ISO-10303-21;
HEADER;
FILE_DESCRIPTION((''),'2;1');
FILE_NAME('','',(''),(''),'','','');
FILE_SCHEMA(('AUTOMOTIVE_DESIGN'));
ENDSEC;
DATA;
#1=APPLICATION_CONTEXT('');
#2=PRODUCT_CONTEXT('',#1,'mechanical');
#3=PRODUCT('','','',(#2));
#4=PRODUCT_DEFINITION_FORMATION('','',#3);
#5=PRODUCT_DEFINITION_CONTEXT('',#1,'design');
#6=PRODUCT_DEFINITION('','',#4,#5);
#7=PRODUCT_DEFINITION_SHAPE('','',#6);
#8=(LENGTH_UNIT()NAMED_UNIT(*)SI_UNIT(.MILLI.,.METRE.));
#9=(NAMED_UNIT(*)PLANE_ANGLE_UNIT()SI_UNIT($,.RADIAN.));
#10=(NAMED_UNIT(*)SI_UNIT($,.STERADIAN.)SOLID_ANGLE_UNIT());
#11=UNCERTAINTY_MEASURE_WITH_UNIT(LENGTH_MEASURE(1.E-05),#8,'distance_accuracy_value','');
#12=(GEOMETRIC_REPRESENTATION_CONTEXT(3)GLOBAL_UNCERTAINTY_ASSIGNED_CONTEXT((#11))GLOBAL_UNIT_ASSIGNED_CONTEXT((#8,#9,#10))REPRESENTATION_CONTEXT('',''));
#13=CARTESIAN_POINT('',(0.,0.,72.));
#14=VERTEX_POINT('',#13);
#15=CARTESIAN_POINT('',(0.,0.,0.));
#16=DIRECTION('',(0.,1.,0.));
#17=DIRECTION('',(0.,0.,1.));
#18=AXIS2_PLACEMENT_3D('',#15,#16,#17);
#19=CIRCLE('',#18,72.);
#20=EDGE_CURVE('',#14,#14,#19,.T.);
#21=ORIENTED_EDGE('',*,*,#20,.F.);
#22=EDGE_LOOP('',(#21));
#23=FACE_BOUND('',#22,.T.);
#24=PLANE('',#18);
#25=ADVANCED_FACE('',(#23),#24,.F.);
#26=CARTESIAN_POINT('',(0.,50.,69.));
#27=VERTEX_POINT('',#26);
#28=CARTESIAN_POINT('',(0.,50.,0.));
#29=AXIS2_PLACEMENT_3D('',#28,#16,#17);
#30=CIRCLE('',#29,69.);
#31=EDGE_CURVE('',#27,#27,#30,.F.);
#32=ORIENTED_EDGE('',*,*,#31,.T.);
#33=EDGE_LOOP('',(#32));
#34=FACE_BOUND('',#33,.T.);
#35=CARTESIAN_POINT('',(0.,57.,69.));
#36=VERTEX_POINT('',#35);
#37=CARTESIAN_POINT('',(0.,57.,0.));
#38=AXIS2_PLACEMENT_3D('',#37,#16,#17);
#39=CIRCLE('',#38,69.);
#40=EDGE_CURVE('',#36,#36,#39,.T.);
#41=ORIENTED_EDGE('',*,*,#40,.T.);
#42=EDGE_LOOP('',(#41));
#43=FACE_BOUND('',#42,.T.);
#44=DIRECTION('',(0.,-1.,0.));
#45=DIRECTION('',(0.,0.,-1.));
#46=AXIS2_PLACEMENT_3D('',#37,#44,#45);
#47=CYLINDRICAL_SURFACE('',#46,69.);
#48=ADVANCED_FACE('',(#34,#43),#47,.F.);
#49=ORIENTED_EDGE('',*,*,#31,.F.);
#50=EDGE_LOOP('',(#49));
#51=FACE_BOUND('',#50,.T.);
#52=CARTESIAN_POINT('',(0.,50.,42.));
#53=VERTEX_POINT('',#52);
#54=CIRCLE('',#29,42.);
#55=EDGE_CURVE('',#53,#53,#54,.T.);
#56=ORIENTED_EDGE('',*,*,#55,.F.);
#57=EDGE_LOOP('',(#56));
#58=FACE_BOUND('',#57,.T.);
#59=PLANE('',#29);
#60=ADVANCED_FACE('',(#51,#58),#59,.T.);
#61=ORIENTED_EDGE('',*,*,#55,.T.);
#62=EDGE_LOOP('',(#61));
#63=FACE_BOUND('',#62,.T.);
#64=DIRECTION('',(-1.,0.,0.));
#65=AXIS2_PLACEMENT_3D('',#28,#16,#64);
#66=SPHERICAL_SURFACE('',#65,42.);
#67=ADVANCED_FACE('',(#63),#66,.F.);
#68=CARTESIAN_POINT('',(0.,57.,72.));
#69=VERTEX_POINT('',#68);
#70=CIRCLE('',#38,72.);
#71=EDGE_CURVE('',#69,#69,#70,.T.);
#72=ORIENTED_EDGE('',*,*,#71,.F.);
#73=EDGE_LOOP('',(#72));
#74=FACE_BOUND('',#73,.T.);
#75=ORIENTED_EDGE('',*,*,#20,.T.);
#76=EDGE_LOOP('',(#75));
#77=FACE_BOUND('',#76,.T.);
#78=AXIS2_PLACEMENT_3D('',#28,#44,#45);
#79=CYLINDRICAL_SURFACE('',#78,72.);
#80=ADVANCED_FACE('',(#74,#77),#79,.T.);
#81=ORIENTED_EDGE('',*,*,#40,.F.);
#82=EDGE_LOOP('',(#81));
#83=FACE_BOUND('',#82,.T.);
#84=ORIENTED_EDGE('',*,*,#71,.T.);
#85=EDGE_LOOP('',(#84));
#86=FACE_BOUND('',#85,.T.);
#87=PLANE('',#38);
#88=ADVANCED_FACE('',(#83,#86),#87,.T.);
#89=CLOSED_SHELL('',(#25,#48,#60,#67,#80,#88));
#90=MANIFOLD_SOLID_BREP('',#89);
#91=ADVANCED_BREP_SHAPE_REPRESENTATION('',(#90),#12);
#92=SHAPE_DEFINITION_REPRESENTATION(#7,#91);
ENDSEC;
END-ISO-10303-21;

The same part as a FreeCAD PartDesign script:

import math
import FreeCAD as App
import Part
import Sketcher

V = App.Vector

doc = App.newDocument("Part")
params = doc.addObject("Spreadsheet::Sheet", "Params")
for row, (alias, value) in enumerate([
    ("sketch1_diameter", "144 mm"),
    ("pad1_length", "50 mm"),
    ("sketch2_radius", "42 mm"),
    ("groove_angle", "360 deg"),
    ("sketch3_diameter", "144 mm"),
    ("sketch3_diameter2", "138 mm"),
    ("pad2_length", "7 mm"),
], start=1):
    params.set(f"A{row}", alias)
    params.set(f"B{row}", "=" + value)
    params.setAlias(f"B{row}", alias)

body = doc.addObject("PartDesign::Body", "Body")

# Sketch on XZ plane
sketch1 = body.newObject("Sketcher::SketchObject", "Sketch")
sketch1.AttachmentSupport = (doc.getObject("XZ_Plane"), [""])
sketch1.MapMode = "FlatFace"
sketch1.addGeometry(Part.Circle(V(0, 0, 0), V(0, 0, 1), 72), False)
sketch1.addConstraint([
    Sketcher.Constraint("Coincident", 0, 3, -1, 1),
    Sketcher.Constraint("Diameter", 0, 144.0),
])
sketch1.setExpression("Constraints[1]", "Params.sketch1_diameter")
pad1 = body.newObject("PartDesign::Pad", "Pad")
pad1.Profile = sketch1
pad1.setExpression("Length", "Params.pad1_length")
pad1.Reversed = True

# Sketch on XY plane
sketch2 = body.newObject("Sketcher::SketchObject", "Sketch001")
sketch2.AttachmentSupport = (doc.getObject("XY_Plane"), [""])
sketch2.MapMode = "FlatFace"
sketch2.addGeometry([
    Part.LineSegment(V(42, 50, 0), V(0, 50, 0)),
    Part.LineSegment(V(0, 50, 0), V(0, 8, 0)),
    Part.ArcOfCircle(Part.Circle(V(0, 50, 0), V(0, 0, 1), 42), math.radians(-90), math.radians(0)),
], False)
sketch2.addConstraint([
    Sketcher.Constraint("Coincident", 0, 2, 1, 1),
    Sketcher.Constraint("Coincident", 1, 2, 2, 1),
    Sketcher.Constraint("Coincident", 2, 2, 0, 1),
    Sketcher.Constraint("Horizontal", 0),
    Sketcher.Constraint("Vertical", 1),
    Sketcher.Constraint("Coincident", 0, 2, 2, 3),
    Sketcher.Constraint("PointOnObject", 2, 3, -2),
    Sketcher.Constraint("Radius", 2, 42.0),
    Sketcher.Constraint("DistanceY", -1, 1, 2, 3, 50.0),
])
sketch2.setExpression("Constraints[7]", "Params.sketch2_radius")
groove = body.newObject("PartDesign::Groove", "Groove")
groove.Profile = sketch2
groove.ReferenceAxis = (sketch2, ["V_Axis"])
groove.setExpression("Angle", "Params.groove_angle")

# Sketch on XZ plane
sketch3 = body.newObject("Sketcher::SketchObject", "Sketch002")
sketch3.AttachmentSupport = (doc.getObject("XZ_Plane"), [""])
sketch3.MapMode = "FlatFace"
sketch3.AttachmentOffset = App.Placement(V(0, 0, -50), App.Rotation())
sketch3.addGeometry([
    Part.Circle(V(0, 0, 0), V(0, 0, 1), 72),
    Part.Circle(V(0, 0, 0), V(0, 0, 1), 69),
], False)
sketch3.addConstraint([
    Sketcher.Constraint("Coincident", 0, 3, -1, 1),
    Sketcher.Constraint("Coincident", 1, 3, -1, 1),
    Sketcher.Constraint("Diameter", 0, 144.0),
    Sketcher.Constraint("Diameter", 1, 138.0),
])
sketch3.setExpression("Constraints[2]", "Params.sketch3_diameter")
sketch3.setExpression("Constraints[3]", "Params.sketch3_diameter2")
pad2 = body.newObject("PartDesign::Pad", "Pad001")
pad2.Profile = sketch3
pad2.setExpression("Length", "Params.pad2_length")
pad2.Reversed = True

doc.recompute()
